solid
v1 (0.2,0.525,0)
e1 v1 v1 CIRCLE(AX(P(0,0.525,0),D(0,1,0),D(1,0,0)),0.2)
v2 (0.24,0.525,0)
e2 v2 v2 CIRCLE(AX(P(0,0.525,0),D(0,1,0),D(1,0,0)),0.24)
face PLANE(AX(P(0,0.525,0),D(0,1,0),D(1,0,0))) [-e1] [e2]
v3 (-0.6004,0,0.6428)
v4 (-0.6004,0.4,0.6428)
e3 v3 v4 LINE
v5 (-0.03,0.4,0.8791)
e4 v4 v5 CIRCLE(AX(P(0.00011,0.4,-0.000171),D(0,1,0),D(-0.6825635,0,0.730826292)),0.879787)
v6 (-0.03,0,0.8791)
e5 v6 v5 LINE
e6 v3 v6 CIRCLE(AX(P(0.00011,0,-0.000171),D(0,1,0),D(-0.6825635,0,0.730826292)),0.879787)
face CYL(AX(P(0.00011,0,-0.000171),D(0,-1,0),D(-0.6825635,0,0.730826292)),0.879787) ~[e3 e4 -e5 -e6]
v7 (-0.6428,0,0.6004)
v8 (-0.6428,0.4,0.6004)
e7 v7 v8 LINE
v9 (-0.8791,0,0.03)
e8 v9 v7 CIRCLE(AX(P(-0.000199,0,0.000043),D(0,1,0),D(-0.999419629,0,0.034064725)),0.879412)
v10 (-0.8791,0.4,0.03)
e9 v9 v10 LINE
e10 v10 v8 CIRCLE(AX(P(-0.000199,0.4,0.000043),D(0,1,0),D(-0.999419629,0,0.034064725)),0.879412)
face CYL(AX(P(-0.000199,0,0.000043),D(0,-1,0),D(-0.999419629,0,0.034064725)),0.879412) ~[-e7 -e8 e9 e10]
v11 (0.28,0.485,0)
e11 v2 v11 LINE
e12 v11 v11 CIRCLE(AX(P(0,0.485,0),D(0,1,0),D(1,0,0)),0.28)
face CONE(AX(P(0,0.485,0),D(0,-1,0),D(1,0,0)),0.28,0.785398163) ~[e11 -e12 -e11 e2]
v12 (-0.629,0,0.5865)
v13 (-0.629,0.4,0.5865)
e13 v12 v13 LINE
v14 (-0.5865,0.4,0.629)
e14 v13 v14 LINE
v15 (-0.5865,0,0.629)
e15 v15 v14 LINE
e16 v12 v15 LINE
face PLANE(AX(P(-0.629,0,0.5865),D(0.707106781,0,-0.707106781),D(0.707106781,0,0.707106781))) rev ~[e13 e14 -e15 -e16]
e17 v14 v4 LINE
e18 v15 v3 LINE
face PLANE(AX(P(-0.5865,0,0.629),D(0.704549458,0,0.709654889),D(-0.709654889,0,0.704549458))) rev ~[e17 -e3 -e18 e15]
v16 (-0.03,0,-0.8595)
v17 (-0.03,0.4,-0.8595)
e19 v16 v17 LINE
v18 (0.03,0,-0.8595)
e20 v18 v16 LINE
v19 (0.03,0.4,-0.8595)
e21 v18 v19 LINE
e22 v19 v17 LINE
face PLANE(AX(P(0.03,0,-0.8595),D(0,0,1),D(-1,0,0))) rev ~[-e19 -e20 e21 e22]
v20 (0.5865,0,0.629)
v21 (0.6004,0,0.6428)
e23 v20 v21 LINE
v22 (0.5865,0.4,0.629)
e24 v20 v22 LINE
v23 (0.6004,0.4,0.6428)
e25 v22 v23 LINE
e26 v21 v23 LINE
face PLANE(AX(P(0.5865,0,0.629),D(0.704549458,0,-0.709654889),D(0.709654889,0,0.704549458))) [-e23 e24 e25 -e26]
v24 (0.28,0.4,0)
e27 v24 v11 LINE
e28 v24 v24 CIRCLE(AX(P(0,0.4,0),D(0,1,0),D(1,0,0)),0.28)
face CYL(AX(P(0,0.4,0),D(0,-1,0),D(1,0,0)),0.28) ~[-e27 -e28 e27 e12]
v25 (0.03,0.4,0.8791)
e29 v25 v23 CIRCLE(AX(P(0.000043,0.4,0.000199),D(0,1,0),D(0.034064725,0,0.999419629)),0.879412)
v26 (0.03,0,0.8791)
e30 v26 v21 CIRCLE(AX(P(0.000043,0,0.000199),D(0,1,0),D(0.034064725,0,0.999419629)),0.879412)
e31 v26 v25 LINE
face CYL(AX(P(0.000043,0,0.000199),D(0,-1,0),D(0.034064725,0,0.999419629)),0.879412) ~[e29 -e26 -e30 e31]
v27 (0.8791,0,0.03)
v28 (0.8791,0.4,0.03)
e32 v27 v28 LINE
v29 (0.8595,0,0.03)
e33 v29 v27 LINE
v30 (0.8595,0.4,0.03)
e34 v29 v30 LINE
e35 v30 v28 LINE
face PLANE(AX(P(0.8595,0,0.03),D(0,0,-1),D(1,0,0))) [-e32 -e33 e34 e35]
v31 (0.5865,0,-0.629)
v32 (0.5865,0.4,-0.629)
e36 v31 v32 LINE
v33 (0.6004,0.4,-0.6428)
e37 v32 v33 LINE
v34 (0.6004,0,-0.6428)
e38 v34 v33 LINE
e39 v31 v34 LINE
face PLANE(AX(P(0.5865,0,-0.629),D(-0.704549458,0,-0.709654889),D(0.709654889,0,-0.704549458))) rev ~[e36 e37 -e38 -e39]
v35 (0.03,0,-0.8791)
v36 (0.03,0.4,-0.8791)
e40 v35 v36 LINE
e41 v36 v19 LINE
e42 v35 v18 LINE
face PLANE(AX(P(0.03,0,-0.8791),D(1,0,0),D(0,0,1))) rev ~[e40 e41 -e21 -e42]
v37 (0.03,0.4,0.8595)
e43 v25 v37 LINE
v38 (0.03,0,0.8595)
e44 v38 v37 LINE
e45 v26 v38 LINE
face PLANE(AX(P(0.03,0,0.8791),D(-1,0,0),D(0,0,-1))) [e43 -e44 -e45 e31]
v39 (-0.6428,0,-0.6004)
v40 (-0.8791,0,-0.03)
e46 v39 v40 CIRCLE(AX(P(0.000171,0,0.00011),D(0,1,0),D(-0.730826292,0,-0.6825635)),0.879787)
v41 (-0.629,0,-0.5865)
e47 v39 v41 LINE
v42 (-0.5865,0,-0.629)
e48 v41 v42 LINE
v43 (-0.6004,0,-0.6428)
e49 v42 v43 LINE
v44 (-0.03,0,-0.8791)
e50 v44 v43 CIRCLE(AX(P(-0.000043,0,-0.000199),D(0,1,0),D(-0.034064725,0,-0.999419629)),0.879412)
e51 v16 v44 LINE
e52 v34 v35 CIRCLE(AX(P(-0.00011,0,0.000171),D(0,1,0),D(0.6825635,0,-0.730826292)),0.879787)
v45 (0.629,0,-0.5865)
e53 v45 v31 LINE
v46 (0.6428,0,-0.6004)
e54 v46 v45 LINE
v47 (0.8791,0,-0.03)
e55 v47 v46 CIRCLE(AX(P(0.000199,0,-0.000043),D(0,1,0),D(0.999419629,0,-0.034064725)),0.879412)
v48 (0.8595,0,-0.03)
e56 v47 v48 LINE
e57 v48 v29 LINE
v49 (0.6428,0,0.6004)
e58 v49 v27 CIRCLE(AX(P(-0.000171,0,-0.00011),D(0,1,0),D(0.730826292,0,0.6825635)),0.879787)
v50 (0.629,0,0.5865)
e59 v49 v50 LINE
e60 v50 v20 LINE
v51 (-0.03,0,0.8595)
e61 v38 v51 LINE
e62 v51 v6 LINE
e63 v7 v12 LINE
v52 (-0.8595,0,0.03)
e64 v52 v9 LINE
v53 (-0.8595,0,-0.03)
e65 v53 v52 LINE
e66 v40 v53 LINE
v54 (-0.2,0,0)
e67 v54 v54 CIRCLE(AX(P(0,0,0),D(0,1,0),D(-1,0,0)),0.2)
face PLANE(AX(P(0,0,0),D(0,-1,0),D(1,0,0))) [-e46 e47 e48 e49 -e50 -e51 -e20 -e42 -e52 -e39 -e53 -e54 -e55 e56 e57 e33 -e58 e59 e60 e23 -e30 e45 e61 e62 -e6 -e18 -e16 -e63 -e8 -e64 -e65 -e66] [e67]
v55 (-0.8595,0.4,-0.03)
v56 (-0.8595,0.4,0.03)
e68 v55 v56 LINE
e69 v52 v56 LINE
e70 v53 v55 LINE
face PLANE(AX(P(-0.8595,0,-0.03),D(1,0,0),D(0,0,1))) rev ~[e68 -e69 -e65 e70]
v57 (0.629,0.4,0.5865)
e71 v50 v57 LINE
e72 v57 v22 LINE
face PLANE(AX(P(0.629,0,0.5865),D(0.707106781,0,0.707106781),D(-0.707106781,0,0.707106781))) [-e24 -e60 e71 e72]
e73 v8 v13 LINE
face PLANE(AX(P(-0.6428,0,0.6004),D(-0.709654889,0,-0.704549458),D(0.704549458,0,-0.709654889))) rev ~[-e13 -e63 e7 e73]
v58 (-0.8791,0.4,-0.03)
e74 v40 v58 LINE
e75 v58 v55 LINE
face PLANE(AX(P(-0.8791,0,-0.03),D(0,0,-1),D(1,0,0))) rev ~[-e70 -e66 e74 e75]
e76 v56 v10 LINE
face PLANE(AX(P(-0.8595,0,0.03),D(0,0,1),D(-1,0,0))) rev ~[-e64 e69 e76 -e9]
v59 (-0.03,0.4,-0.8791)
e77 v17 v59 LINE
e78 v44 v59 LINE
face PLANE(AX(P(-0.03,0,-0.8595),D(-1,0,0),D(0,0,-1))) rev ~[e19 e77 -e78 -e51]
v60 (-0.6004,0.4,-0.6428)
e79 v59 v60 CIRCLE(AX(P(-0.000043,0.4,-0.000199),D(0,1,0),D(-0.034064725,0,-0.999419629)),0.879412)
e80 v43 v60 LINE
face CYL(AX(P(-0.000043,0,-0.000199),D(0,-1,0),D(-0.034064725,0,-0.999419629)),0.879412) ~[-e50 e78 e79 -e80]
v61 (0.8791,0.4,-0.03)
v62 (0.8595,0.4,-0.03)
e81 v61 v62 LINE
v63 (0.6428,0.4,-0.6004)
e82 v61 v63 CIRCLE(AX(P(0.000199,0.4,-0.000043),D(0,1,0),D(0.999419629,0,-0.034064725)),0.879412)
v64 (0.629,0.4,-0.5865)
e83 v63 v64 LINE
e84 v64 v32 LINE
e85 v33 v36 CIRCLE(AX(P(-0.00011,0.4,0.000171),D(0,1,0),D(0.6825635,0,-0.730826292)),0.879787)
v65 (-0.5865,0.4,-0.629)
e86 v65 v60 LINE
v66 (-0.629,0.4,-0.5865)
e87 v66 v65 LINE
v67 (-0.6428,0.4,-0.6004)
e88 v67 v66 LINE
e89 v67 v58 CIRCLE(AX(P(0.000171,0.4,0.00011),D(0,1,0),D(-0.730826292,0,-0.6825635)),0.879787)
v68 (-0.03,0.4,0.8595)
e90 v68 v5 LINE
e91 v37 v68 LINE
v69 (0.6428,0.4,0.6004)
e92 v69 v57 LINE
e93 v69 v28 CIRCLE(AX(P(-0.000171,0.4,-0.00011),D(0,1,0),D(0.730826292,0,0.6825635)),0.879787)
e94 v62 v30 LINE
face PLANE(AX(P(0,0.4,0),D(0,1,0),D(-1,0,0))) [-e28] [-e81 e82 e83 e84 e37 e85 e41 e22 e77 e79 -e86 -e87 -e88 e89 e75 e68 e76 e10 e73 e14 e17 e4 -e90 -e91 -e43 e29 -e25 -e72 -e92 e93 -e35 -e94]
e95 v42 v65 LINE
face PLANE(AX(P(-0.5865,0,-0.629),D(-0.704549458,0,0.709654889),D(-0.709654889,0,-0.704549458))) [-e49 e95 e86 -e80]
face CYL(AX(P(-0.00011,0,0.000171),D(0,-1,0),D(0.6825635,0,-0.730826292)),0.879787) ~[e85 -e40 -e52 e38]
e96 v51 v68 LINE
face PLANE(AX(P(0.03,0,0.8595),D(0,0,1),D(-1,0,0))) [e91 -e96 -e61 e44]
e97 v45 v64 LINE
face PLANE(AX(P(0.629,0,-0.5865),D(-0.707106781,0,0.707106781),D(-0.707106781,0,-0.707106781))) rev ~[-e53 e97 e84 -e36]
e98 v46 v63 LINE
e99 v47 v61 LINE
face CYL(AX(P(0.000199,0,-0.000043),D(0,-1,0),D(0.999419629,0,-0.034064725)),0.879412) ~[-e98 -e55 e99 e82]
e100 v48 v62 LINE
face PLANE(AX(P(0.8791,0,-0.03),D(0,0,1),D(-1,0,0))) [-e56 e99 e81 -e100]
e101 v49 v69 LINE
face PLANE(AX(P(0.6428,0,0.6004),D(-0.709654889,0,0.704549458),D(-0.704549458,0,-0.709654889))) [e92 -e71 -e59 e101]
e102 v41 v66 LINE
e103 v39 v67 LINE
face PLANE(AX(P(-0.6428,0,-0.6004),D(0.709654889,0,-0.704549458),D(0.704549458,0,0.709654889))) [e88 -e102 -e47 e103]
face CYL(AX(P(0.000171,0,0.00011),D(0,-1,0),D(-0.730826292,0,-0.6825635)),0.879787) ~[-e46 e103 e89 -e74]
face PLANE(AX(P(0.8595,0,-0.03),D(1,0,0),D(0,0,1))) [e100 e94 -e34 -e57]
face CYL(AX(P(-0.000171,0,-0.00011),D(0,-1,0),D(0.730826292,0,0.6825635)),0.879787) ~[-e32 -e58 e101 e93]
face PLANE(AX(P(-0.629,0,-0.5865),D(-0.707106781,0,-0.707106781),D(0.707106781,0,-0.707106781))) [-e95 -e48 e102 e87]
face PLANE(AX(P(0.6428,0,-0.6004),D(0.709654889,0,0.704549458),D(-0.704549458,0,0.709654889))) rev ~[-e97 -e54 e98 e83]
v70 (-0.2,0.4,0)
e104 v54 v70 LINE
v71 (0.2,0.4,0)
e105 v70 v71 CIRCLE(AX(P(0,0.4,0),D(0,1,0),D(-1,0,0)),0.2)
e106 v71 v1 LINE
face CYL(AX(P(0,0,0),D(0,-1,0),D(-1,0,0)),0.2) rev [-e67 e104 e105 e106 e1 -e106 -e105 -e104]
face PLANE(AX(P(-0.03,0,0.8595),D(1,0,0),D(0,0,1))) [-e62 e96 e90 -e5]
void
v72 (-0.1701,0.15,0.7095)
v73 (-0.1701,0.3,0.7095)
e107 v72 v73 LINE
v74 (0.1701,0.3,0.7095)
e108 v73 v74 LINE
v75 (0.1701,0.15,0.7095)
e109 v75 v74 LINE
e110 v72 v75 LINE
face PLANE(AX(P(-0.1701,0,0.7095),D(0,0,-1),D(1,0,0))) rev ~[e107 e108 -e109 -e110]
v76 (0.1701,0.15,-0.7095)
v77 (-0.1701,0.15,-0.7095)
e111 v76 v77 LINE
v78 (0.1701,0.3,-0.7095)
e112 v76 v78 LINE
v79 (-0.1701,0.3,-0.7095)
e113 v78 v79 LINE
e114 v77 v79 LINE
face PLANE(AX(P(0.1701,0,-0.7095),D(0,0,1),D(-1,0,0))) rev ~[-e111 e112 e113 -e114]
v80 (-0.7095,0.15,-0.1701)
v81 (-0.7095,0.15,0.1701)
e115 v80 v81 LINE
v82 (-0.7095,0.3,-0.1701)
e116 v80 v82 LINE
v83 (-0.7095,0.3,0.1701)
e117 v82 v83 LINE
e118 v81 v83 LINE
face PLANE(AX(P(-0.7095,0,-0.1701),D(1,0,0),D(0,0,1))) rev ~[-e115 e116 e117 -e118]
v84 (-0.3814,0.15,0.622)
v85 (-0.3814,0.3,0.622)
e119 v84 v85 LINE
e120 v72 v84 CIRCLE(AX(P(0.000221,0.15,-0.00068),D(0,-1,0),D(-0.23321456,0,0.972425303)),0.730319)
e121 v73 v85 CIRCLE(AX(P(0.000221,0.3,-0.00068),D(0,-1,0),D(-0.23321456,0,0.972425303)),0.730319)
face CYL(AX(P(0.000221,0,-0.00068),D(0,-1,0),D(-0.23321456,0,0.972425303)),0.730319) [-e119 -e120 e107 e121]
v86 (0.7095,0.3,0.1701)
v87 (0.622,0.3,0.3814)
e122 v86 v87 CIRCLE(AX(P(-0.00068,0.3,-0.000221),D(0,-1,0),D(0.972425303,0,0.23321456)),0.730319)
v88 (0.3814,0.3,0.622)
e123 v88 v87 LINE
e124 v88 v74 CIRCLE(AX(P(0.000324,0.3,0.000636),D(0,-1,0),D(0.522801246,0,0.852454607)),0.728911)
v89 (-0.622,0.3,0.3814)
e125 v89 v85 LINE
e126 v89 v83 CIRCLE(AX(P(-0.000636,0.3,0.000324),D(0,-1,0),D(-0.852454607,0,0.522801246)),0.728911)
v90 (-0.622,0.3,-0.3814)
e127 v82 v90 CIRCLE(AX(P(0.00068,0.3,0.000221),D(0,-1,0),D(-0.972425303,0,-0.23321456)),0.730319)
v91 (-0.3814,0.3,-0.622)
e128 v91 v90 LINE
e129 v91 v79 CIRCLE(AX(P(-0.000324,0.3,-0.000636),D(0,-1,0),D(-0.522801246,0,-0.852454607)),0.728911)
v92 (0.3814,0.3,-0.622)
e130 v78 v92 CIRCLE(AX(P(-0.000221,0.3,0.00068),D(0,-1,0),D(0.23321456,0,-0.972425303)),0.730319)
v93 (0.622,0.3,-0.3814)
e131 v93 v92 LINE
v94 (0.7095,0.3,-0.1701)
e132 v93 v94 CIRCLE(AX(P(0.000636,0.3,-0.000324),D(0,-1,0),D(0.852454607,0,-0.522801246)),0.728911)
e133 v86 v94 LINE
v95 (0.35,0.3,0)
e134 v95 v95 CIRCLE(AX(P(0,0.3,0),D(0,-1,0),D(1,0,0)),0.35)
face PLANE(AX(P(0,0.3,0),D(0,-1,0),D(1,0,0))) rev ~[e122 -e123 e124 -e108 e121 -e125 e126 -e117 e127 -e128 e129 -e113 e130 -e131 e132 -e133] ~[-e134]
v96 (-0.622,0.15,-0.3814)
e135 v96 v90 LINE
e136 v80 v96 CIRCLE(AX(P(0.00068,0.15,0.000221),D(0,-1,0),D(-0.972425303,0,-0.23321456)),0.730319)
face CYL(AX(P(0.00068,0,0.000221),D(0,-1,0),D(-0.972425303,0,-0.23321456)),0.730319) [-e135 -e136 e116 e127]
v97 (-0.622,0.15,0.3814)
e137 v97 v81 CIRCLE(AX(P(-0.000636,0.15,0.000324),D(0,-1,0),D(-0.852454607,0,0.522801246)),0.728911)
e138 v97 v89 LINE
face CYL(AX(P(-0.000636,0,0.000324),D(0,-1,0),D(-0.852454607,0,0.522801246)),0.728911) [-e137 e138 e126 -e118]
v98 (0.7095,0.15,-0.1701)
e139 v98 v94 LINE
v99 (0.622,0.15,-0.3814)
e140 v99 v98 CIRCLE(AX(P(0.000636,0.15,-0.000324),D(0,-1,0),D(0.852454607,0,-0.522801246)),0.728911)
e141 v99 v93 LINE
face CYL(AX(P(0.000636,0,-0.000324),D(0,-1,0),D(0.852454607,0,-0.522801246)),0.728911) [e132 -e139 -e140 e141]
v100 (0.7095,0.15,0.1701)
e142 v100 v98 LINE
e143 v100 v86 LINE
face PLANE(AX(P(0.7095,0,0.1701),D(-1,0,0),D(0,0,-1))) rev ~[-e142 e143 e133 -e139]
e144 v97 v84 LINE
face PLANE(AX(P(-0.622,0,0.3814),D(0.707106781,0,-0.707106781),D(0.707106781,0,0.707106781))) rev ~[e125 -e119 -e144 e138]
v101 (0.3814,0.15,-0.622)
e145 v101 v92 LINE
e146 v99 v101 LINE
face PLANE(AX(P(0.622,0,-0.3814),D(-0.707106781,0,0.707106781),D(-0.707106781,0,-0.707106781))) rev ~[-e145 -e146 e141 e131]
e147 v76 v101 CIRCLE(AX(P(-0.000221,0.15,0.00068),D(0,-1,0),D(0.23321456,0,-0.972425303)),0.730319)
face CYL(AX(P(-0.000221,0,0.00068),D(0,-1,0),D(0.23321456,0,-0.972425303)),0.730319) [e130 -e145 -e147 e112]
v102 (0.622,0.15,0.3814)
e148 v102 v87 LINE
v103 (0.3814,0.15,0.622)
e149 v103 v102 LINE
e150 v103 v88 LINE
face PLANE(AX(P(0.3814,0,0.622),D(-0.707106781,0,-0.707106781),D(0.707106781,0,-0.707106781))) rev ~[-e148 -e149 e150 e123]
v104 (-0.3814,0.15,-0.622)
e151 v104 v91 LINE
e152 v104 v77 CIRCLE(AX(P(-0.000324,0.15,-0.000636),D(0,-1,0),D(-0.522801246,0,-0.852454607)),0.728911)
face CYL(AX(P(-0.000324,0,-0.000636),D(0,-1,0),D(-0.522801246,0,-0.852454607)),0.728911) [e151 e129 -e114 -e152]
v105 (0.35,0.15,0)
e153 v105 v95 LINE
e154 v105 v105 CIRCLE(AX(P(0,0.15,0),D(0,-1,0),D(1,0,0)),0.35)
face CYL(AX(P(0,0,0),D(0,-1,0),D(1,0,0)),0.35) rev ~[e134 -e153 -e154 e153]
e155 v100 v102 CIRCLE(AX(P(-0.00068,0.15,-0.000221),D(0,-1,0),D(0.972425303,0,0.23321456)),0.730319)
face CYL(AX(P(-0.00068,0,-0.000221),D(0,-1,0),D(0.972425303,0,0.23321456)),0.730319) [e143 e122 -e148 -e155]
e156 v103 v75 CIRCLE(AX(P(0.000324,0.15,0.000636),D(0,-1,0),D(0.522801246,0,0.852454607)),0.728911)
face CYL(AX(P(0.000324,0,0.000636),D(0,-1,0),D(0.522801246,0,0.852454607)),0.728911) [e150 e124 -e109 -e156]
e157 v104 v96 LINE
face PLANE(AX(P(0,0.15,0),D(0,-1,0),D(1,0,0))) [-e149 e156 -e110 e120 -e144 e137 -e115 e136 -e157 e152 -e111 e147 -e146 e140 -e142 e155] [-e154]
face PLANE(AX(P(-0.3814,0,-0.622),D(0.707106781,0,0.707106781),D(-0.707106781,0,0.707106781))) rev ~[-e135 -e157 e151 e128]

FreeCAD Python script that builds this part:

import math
import FreeCAD as App
import Part
import Sketcher
from FreeCAD import Vector


def edges_at(feature, points):
    """Names of the edges that pass closest to the given points."""
    edges = feature.Shape.Edges
    near = lambda p: min(range(len(edges)), key=lambda i: edges[i].distToShape(Part.Vertex(*p))[0])
    return sorted({f"Edge{near(p) + 1}" for p in points})

doc = App.newDocument("Part")
params = doc.addObject("Spreadsheet::Sheet", "Params")
for row, (alias, value) in enumerate([
    ("sketch1_diameter", "0.4 mm"),
    ("sketch1_width", "0.06 mm"),
    ("sketch1_length", "0.06 mm"),
    ("pad1_length", "0.4 mm"),
    ("sketch2_diameter", "0.4 mm"),
    ("sketch2_diameter2", "0.56 mm"),
    ("pad2_length", "0.125 mm"),
    ("chamfer_size", "0.04 mm"),
    ("sketch3_diameter", "0.7 mm"),
    ("pocket1_length", "0.3 mm"),
    ("sketch4_diameter", "0.7 mm"),
    ("pad3_length", "0.15 mm"),
], start=1):
    params.set(f"A{row}", alias)
    params.set(f"B{row}", "=" + value)
    params.setAlias(f"B{row}", alias)

body = doc.addObject("PartDesign::Body", "Body")

sketch1 = body.newObject("Sketcher::SketchObject", "Sketch")
sketch1.AttachmentSupport = (doc.getObject("XZ_Plane"), [""])
sketch1.MapMode = "FlatFace"
sketch1.addGeometry([
    Part.ArcOfCircle(Part.Circle(Vector(0, 0, 0), Vector(0, 0, 1), 0.879612), math.radians(-88.045494), math.radians(-46.953346)),
    Part.LineSegment(Vector(0.03, -0.8791, 0), Vector(0.03, -0.8595, 0)),
    Part.LineSegment(Vector(0.03, -0.8595, 0), Vector(-0.03, -0.8595, 0)),
    Part.LineSegment(Vector(-0.03, -0.8595, 0), Vector(-0.03, -0.8791, 0)),
    Part.ArcOfCircle(Part.Circle(Vector(0, 0, 0), Vector(0, 0, 1), 0.879586), math.radians(-133.046654), math.radians(-91.954506)),
    Part.LineSegment(Vector(-0.6004, -0.6428, 0), Vector(-0.5865, -0.629, 0)),
    Part.LineSegment(Vector(-0.5865, -0.629, 0), Vector(-0.629, -0.5865, 0)),
    Part.LineSegment(Vector(-0.629, -0.5865, 0), Vector(-0.6428, -0.6004, 0)),
    Part.ArcOfCircle(Part.Circle(Vector(0, 0, 0), Vector(0, 0, 1), 0.879612), math.radians(-178.045494), math.radians(-136.953346)),
    Part.LineSegment(Vector(-0.8791, -0.03, 0), Vector(-0.8595, -0.03, 0)),
    Part.LineSegment(Vector(-0.8595, -0.03, 0), Vector(-0.8595, 0.03, 0)),
    Part.LineSegment(Vector(-0.8595, 0.03, 0), Vector(-0.8791, 0.03, 0)),
    Part.ArcOfCircle(Part.Circle(Vector(0, 0, 0), Vector(0, 0, 1), 0.879586), math.radians(136.953346), math.radians(178.045494)),
    Part.LineSegment(Vector(-0.6428, 0.6004, 0), Vector(-0.629, 0.5865, 0)),
    Part.LineSegment(Vector(-0.629, 0.5865, 0), Vector(-0.5865, 0.629, 0)),
    Part.LineSegment(Vector(-0.5865, 0.629, 0), Vector(-0.6004, 0.6428, 0)),
    Part.ArcOfCircle(Part.Circle(Vector(0, 0, 0), Vector(0, 0, 1), 0.879612), math.radians(91.954506), math.radians(133.046654)),
    Part.LineSegment(Vector(-0.03, 0.8791, 0), Vector(-0.03, 0.8595, 0)),
    Part.LineSegment(Vector(-0.03, 0.8595, 0), Vector(0.03, 0.8595, 0)),
    Part.LineSegment(Vector(0.03, 0.8595, 0), Vector(0.03, 0.8791, 0)),
    Part.ArcOfCircle(Part.Circle(Vector(0, 0, 0), Vector(0, 0, 1), 0.879586), math.radians(46.953346), math.radians(88.045494)),
    Part.LineSegment(Vector(0.6004, 0.6428, 0), Vector(0.5865, 0.629, 0)),
    Part.LineSegment(Vector(0.5865, 0.629, 0), Vector(0.629, 0.5865, 0)),
    Part.LineSegment(Vector(0.629, 0.5865, 0), Vector(0.6428, 0.6004, 0)),
    Part.ArcOfCircle(Part.Circle(Vector(0, 0, 0), Vector(0, 0, 1), 0.879612), math.radians(1.954506), math.radians(43.046654)),
    Part.LineSegment(Vector(0.8791, 0.03, 0), Vector(0.8595, 0.03, 0)),
    Part.LineSegment(Vector(0.8595, 0.03, 0), Vector(0.8595, -0.03, 0)),
    Part.LineSegment(Vector(0.8595, -0.03, 0), Vector(0.8791, -0.03, 0)),
    Part.ArcOfCircle(Part.Circle(Vector(0, 0, 0), Vector(0, 0, 1), 0.879586), math.radians(-43.046654), math.radians(-1.954506)),
    Part.LineSegment(Vector(0.6428, -0.6004, 0), Vector(0.629, -0.5865, 0)),
    Part.LineSegment(Vector(0.629, -0.5865, 0), Vector(0.5865, -0.629, 0)),
    Part.LineSegment(Vector(0.5865, -0.629, 0), Vector(0.6004, -0.6428, 0)),
    Part.Circle(Vector(0, 0, 0), Vector(0, 0, 1), 0.2),
], False)
sketch1.addConstraint([
    Sketcher.Constraint("Coincident", 0, 1, 1, 1),
    Sketcher.Constraint("Coincident", 1, 2, 2, 1),
    Sketcher.Constraint("Coincident", 2, 2, 3, 1),
    Sketcher.Constraint("Coincident", 3, 2, 4, 2),
    Sketcher.Constraint("Coincident", 4, 1, 5, 1),
    Sketcher.Constraint("Coincident", 5, 2, 6, 1),
    Sketcher.Constraint("Coincident", 6, 2, 7, 1),
    Sketcher.Constraint("Coincident", 7, 2, 8, 2),
    Sketcher.Constraint("Coincident", 8, 1, 9, 1),
    Sketcher.Constraint("Coincident", 9, 2, 10, 1),
    Sketcher.Constraint("Coincident", 10, 2, 11, 1),
    Sketcher.Constraint("Coincident", 11, 2, 12, 2),
    Sketcher.Constraint("Coincident", 12, 1, 13, 1),
    Sketcher.Constraint("Coincident", 13, 2, 14, 1),
    Sketcher.Constraint("Coincident", 14, 2, 15, 1),
    Sketcher.Constraint("Coincident", 15, 2, 16, 2),
    Sketcher.Constraint("Coincident", 16, 1, 17, 1),
    Sketcher.Constraint("Coincident", 17, 2, 18, 1),
    Sketcher.Constraint("Coincident", 18, 2, 19, 1),
    Sketcher.Constraint("Coincident", 19, 2, 20, 2),
    Sketcher.Constraint("Coincident", 20, 1, 21, 1),
    Sketcher.Constraint("Coincident", 21, 2, 22, 1),
    Sketcher.Constraint("Coincident", 22, 2, 23, 1),
    Sketcher.Constraint("Coincident", 23, 2, 24, 2),
    Sketcher.Constraint("Coincident", 24, 1, 25, 1),
    Sketcher.Constraint("Coincident", 25, 2, 26, 1),
    Sketcher.Constraint("Coincident", 26, 2, 27, 1),
    Sketcher.Constraint("Coincident", 27, 2, 28, 2),
    Sketcher.Constraint("Coincident", 28, 1, 29, 1),
    Sketcher.Constraint("Coincident", 29, 2, 30, 1),
    Sketcher.Constraint("Coincident", 30, 2, 31, 1),
    Sketcher.Constraint("Coincident", 31, 2, 0, 2),
    Sketcher.Constraint("Vertical", 1),
    Sketcher.Constraint("Horizontal", 2),
    Sketcher.Constraint("Vertical", 3),
    Sketcher.Constraint("Horizontal", 9),
    Sketcher.Constraint("Vertical", 10),
    Sketcher.Constraint("Horizontal", 11),
    Sketcher.Constraint("Vertical", 17),
    Sketcher.Constraint("Horizontal", 18),
    Sketcher.Constraint("Vertical", 19),
    Sketcher.Constraint("Horizontal", 25),
    Sketcher.Constraint("Vertical", 26),
    Sketcher.Constraint("Horizontal", 27),
    Sketcher.Constraint("Coincident", 0, 3, -1, 1),
    Sketcher.Constraint("Coincident", 4, 3, -1, 1),
    Sketcher.Constraint("Coincident", 8, 3, -1, 1),
    Sketcher.Constraint("Coincident", 12, 3, -1, 1),
    Sketcher.Constraint("Coincident", 16, 3, -1, 1),
    Sketcher.Constraint("Coincident", 20, 3, -1, 1),
    Sketcher.Constraint("Coincident", 24, 3, -1, 1),
    Sketcher.Constraint("Coincident", 28, 3, -1, 1),
    Sketcher.Constraint("Coincident", 32, 3, -1, 1),
    Sketcher.Constraint("Equal", 0, 4),
    Sketcher.Constraint("Equal", 4, 8),
    Sketcher.Constraint("Equal", 8, 12),
    Sketcher.Constraint("Equal", 12, 16),
    Sketcher.Constraint("Equal", 16, 20),
    Sketcher.Constraint("Equal", 20, 24),
    Sketcher.Constraint("Equal", 24, 28),
    Sketcher.Constraint("Symmetric", 1, 2, 17, 2, -1, 1),
    Sketcher.Constraint("Symmetric", 5, 2, 21, 2, -1, 1),
    Sketcher.Constraint("Symmetric", 6, 2, 22, 2, -1, 1),
    Sketcher.Constraint("Symmetric", 9, 2, 25, 2, -1, 1),
    Sketcher.Constraint("Symmetric", 13, 2, 29, 2, -1, 1),
    Sketcher.Constraint("Symmetric", 14, 2, 30, 2, -1, 1),
    Sketcher.Constraint("Symmetric", 14, 2, 21, 2, -2),
    Sketcher.Constraint("Symmetric", 13, 2, 22, 2, -2),
    Sketcher.Constraint("Perpendicular", 5, 13),
    Sketcher.Constraint("Perpendicular", 6, 14),
    Sketcher.Constraint("Perpendicular", 7, 15),
    Sketcher.Constraint("Perpendicular", 13, 21),
    Sketcher.Constraint("Perpendicular", 15, 23),
    Sketcher.Constraint("Perpendicular", 21, 29),
    Sketcher.Constraint("Perpendicular", 23, 31),
    Sketcher.Constraint("Horizontal", 0, 1, 3, 2),
    Sketcher.Constraint("Horizontal", 16, 1, 19, 2),
    Sketcher.Constraint("Horizontal", 15, 2, 20, 1),
    Sketcher.Constraint("Horizontal", 11, 2, 24, 1),
    Sketcher.Constraint("Horizontal", 9, 2, 26, 2),
    Sketcher.Constraint("Equal", 27, 1),
    Sketcher.Constraint("Equal", 18, 10),
    Sketcher.Constraint("Equal", 5, 7),
    Sketcher.Constraint("Diameter", 32, 0.4),
    Sketcher.Constraint("DistanceX", 2, 2, 2, 1, 0.06),
    Sketcher.Constraint("Radius", 0, 0.8796),
    Sketcher.Constraint("Distance", 6, 0.06),
    Sketcher.Constraint("DistanceY", 3, 2, 5, 2, 0.25),
    Sketcher.Constraint("DistanceX", 9, 1, 9, 2, 0.0196),
    Sketcher.Constraint("DistanceX", 4, 1, 5, 2, 0.014),
])
sketch1.setExpression("Constraints[83]", "Params.sketch1_diameter")
sketch1.setExpression("Constraints[84]", "Params.sketch1_width")
sketch1.setExpression("Constraints[86]", "Params.sketch1_length")
pad1 = body.newObject("PartDesign::Pad", "Pad")
pad1.Profile = sketch1
pad1.setExpression("Length", "Params.pad1_length")
pad1.Reversed = True

sketch2 = body.newObject("Sketcher::SketchObject", "Sketch001")
sketch2.AttachmentSupport = (doc.getObject("XZ_Plane"), [""])
sketch2.MapMode = "FlatFace"
sketch2.AttachmentOffset = App.Placement(Vector(0, 0, -0.4), App.Rotation())
sketch2.addGeometry([
    Part.Circle(Vector(0, 0, 0), Vector(0, 0, 1), 0.28),
    Part.Circle(Vector(0, 0, 0), Vector(0, 0, 1), 0.2),
], False)
sketch2.addConstraint([
    Sketcher.Constraint("Coincident", 0, 3, -1, 1),
    Sketcher.Constraint("Coincident", 1, 3, -1, 1),
    Sketcher.Constraint("Diameter", 1, 0.4),
    Sketcher.Constraint("Diameter", 0, 0.56),
])
sketch2.setExpression("Constraints[2]", "Params.sketch2_diameter")
sketch2.setExpression("Constraints[3]", "Params.sketch2_diameter2")
pad2 = body.newObject("PartDesign::Pad", "Pad001")
pad2.Profile = sketch2
pad2.setExpression("Length", "Params.pad2_length")
pad2.Reversed = True
doc.recompute()

chamfer = body.newObject("PartDesign::Chamfer", "Chamfer")
chamfer.Base = (pad2, edges_at(pad2, [(-0.28, 0.525, 0)]))
chamfer.setExpression("Size", "Params.chamfer_size")

sketch3 = body.newObject("Sketcher::SketchObject", "Sketch002")
sketch3.AttachmentSupport = (doc.getObject("XZ_Plane"), [""])
sketch3.MapMode = "FlatFace"
sketch3.addGeometry([
    Part.LineSegment(Vector(0.7095, -0.1701, 0), Vector(0.7095, 0.1701, 0)),
    Part.ArcOfCircle(Part.Circle(Vector(0, 0, 0), Vector(0, 0, 1), 0.729623), math.radians(13.481988), math.radians(31.515929)),
    Part.LineSegment(Vector(0.622, 0.3814, 0), Vector(0.3814, 0.622, 0)),
    Part.ArcOfCircle(Part.Circle(Vector(0, 0, 0), Vector(0, 0, 1), 0.729606), math.radians(58.484071), math.radians(76.518012)),
    Part.LineSegment(Vector(0.1701, 0.7095, 0), Vector(-0.1701, 0.7095, 0)),
    Part.ArcOfCircle(Part.Circle(Vector(0, 0, 0), Vector(0, 0, 1), 0.729623), math.radians(103.481988), math.radians(121.515929)),
    Part.LineSegment(Vector(-0.3814, 0.622, 0), Vector(-0.622, 0.3814, 0)),
    Part.ArcOfCircle(Part.Circle(Vector(0, 0, 0), Vector(0, 0, 1), 0.729606), math.radians(148.484071), math.radians(166.518012)),
    Part.LineSegment(Vector(-0.7095, 0.1701, 0), Vector(-0.7095, -0.1701, 0)),
    Part.ArcOfCircle(Part.Circle(Vector(0, 0, 0), Vector(0, 0, 1), 0.729623), math.radians(-166.518012), math.radians(-148.484071)),
    Part.LineSegment(Vector(-0.622, -0.3814, 0), Vector(-0.3814, -0.622, 0)),
    Part.ArcOfCircle(Part.Circle(Vector(0, 0, 0), Vector(0, 0, 1), 0.729606), math.radians(-121.515929), math.radians(-103.481988)),
    Part.LineSegment(Vector(-0.1701, -0.7095, 0), Vector(0.1701, -0.7095, 0)),
    Part.ArcOfCircle(Part.Circle(Vector(0, 0, 0), Vector(0, 0, 1), 0.729623), math.radians(-76.518012), math.radians(-58.484071)),
    Part.LineSegment(Vector(0.3814, -0.622, 0), Vector(0.622, -0.3814, 0)),
    Part.ArcOfCircle(Part.Circle(Vector(0, 0, 0), Vector(0, 0, 1), 0.729606), math.radians(-31.515929), math.radians(-13.481988)),
    Part.Circle(Vector(0, 0, 0), Vector(0, 0, 1), 0.35),
], False)
sketch3.addConstraint([
    Sketcher.Constraint("Coincident", 0, 2, 1, 1),
    Sketcher.Constraint("Coincident", 1, 2, 2, 1),
    Sketcher.Constraint("Coincident", 2, 2, 3, 1),
    Sketcher.Constraint("Coincident", 3, 2, 4, 1),
    Sketcher.Constraint("Coincident", 4, 2, 5, 1),
    Sketcher.Constraint("Coincident", 5, 2, 6, 1),
    Sketcher.Constraint("Coincident", 6, 2, 7, 1),
    Sketcher.Constraint("Coincident", 7, 2, 8, 1),
    Sketcher.Constraint("Coincident", 8, 2, 9, 1),
    Sketcher.Constraint("Coincident", 9, 2, 10, 1),
    Sketcher.Constraint("Coincident", 10, 2, 11, 1),
    Sketcher.Constraint("Coincident", 11, 2, 12, 1),
    Sketcher.Constraint("Coincident", 12, 2, 13, 1),
    Sketcher.Constraint("Coincident", 13, 2, 14, 1),
    Sketcher.Constraint("Coincident", 14, 2, 15, 1),
    Sketcher.Constraint("Coincident", 15, 2, 0, 1),
    Sketcher.Constraint("Vertical", 0),
    Sketcher.Constraint("Horizontal", 4),
    Sketcher.Constraint("Vertical", 8),
    Sketcher.Constraint("Horizontal", 12),
    Sketcher.Constraint("Coincident", 1, 3, -1, 1),
    Sketcher.Constraint("Coincident", 3, 3, -1, 1),
    Sketcher.Constraint("Coincident", 5, 3, -1, 1),
    Sketcher.Constraint("Coincident", 7, 3, -1, 1),
    Sketcher.Constraint("Coincident", 9, 3, -1, 1),
    Sketcher.Constraint("Coincident", 11, 3, -1, 1),
    Sketcher.Constraint("Coincident", 13, 3, -1, 1),
    Sketcher.Constraint("Coincident", 15, 3, -1, 1),
    Sketcher.Constraint("Coincident", 16, 3, -1, 1),
    Sketcher.Constraint("Equal", 1, 3),
    Sketcher.Constraint("Equal", 3, 5),
    Sketcher.Constraint("Equal", 5, 7),
    Sketcher.Constraint("Equal", 7, 9),
    Sketcher.Constraint("Equal", 9, 11),
    Sketcher.Constraint("Equal", 11, 13),
    Sketcher.Constraint("Equal", 13, 15),
    Sketcher.Constraint("Perpendicular", 2, 6),
    Sketcher.Constraint("Perpendicular", 6, 10),
    Sketcher.Constraint("Perpendicular", 10, 14),
    Sketcher.Constraint("Horizontal", 2, 2, 5, 2),
    Sketcher.Constraint("Horizontal", 1, 2, 6, 2),
    Sketcher.Constraint("Horizontal", 0, 2, 7, 2),
    Sketcher.Constraint("Horizontal", 10, 2, 13, 2),
    Sketcher.Constraint("Vertical", 6, 2, 9, 2),
    Sketcher.Constraint("Vertical", 4, 2, 11, 2),
    Sketcher.Constraint("Equal", 12, 0),
    Sketcher.Constraint("Diameter", 16, 0.7),
    Sketcher.Constraint("Radius", 1, 0.7296),
    Sketcher.Constraint("DistanceY", -1, 1, 0, 2, 0.17),
    Sketcher.Constraint("DistanceX", -1, 1, 1, 2, 0.622),
])
sketch3.setExpression("Constraints[46]", "Params.sketch3_diameter")
pocket1 = body.newObject("PartDesign::Pocket", "Pocket")
pocket1.Profile = sketch3
pocket1.setExpression("Length", "Params.pocket1_length")

sketch4 = body.newObject("Sketcher::SketchObject", "Sketch003")
sketch4.AttachmentSupport = (doc.getObject("XZ_Plane"), [""])
sketch4.MapMode = "FlatFace"
sketch4.addGeometry([
    Part.LineSegment(Vector(0.7095, -0.1701, 0), Vector(0.7095, 0.1701, 0)),
    Part.ArcOfCircle(Part.Circle(Vector(0, 0, 0), Vector(0, 0, 1), 0.729623), math.radians(13.481988), math.radians(31.515929)),
    Part.LineSegment(Vector(0.622, 0.3814, 0), Vector(0.3814, 0.622, 0)),
    Part.ArcOfCircle(Part.Circle(Vector(0, 0, 0), Vector(0, 0, 1), 0.729606), math.radians(58.484071), math.radians(76.518012)),
    Part.LineSegment(Vector(0.1701, 0.7095, 0), Vector(-0.1701, 0.7095, 0)),
    Part.ArcOfCircle(Part.Circle(Vector(0, 0, 0), Vector(0, 0, 1), 0.729623), math.radians(103.481988), math.radians(121.515929)),
    Part.LineSegment(Vector(-0.3814, 0.622, 0), Vector(-0.622, 0.3814, 0)),
    Part.ArcOfCircle(Part.Circle(Vector(0, 0, 0), Vector(0, 0, 1), 0.729606), math.radians(148.484071), math.radians(166.518012)),
    Part.LineSegment(Vector(-0.7095, 0.1701, 0), Vector(-0.7095, -0.1701, 0)),
    Part.ArcOfCircle(Part.Circle(Vector(0, 0, 0), Vector(0, 0, 1), 0.729623), math.radians(-166.518012), math.radians(-148.484071)),
    Part.LineSegment(Vector(-0.622, -0.3814, 0), Vector(-0.3814, -0.622, 0)),
    Part.ArcOfCircle(Part.Circle(Vector(0, 0, 0), Vector(0, 0, 1), 0.729606), math.radians(-121.515929), math.radians(-103.481988)),
    Part.LineSegment(Vector(-0.1701, -0.7095, 0), Vector(0.1701, -0.7095, 0)),
    Part.ArcOfCircle(Part.Circle(Vector(0, 0, 0), Vector(0, 0, 1), 0.729623), math.radians(-76.518012), math.radians(-58.484071)),
    Part.LineSegment(Vector(0.3814, -0.622, 0), Vector(0.622, -0.3814, 0)),
    Part.ArcOfCircle(Part.Circle(Vector(0, 0, 0), Vector(0, 0, 1), 0.729606), math.radians(-31.515929), math.radians(-13.481988)),
    Part.Circle(Vector(0, 0, 0), Vector(0, 0, 1), 0.35),
], False)
sketch4.addConstraint([
    Sketcher.Constraint("Coincident", 0, 2, 1, 1),
    Sketcher.Constraint("Coincident", 1, 2, 2, 1),
    Sketcher.Constraint("Coincident", 2, 2, 3, 1),
    Sketcher.Constraint("Coincident", 3, 2, 4, 1),
    Sketcher.Constraint("Coincident", 4, 2, 5, 1),
    Sketcher.Constraint("Coincident", 5, 2, 6, 1),
    Sketcher.Constraint("Coincident", 6, 2, 7, 1),
    Sketcher.Constraint("Coincident", 7, 2, 8, 1),
    Sketcher.Constraint("Coincident", 8, 2, 9, 1),
    Sketcher.Constraint("Coincident", 9, 2, 10, 1),
    Sketcher.Constraint("Coincident", 10, 2, 11, 1),
    Sketcher.Constraint("Coincident", 11, 2, 12, 1),
    Sketcher.Constraint("Coincident", 12, 2, 13, 1),
    Sketcher.Constraint("Coincident", 13, 2, 14, 1),
    Sketcher.Constraint("Coincident", 14, 2, 15, 1),
    Sketcher.Constraint("Coincident", 15, 2, 0, 1),
    Sketcher.Constraint("Vertical", 0),
    Sketcher.Constraint("Horizontal", 4),
    Sketcher.Constraint("Vertical", 8),
    Sketcher.Constraint("Horizontal", 12),
    Sketcher.Constraint("Coincident", 1, 3, -1, 1),
    Sketcher.Constraint("Coincident", 3, 3, -1, 1),
    Sketcher.Constraint("Coincident", 5, 3, -1, 1),
    Sketcher.Constraint("Coincident", 7, 3, -1, 1),
    Sketcher.Constraint("Coincident", 9, 3, -1, 1),
    Sketcher.Constraint("Coincident", 11, 3, -1, 1),
    Sketcher.Constraint("Coincident", 13, 3, -1, 1),
    Sketcher.Constraint("Coincident", 15, 3, -1, 1),
    Sketcher.Constraint("Coincident", 16, 3, -1, 1),
    Sketcher.Constraint("Equal", 1, 3),
    Sketcher.Constraint("Equal", 3, 5),
    Sketcher.Constraint("Equal", 5, 7),
    Sketcher.Constraint("Equal", 7, 9),
    Sketcher.Constraint("Equal", 9, 11),
    Sketcher.Constraint("Equal", 11, 13),
    Sketcher.Constraint("Equal", 13, 15),
    Sketcher.Constraint("Perpendicular", 2, 6),
    Sketcher.Constraint("Perpendicular", 6, 10),
    Sketcher.Constraint("Perpendicular", 10, 14),
    Sketcher.Constraint("Horizontal", 2, 2, 5, 2),
    Sketcher.Constraint("Horizontal", 1, 2, 6, 2),
    Sketcher.Constraint("Horizontal", 0, 2, 7, 2),
    Sketcher.Constraint("Horizontal", 10, 2, 13, 2),
    Sketcher.Constraint("Vertical", 6, 2, 9, 2),
    Sketcher.Constraint("Vertical", 4, 2, 11, 2),
    Sketcher.Constraint("Equal", 12, 0),
    Sketcher.Constraint("Diameter", 16, 0.7),
    Sketcher.Constraint("Radius", 1, 0.7296),
    Sketcher.Constraint("DistanceY", -1, 1, 0, 2, 0.17),
    Sketcher.Constraint("DistanceX", -1, 1, 1, 2, 0.622),
])
sketch4.setExpression("Constraints[46]", "Params.sketch4_diameter")
pad3 = body.newObject("PartDesign::Pad", "Pad002")
pad3.Profile = sketch4
pad3.setExpression("Length", "Params.pad3_length")
pad3.Reversed = True

doc.recompute()
